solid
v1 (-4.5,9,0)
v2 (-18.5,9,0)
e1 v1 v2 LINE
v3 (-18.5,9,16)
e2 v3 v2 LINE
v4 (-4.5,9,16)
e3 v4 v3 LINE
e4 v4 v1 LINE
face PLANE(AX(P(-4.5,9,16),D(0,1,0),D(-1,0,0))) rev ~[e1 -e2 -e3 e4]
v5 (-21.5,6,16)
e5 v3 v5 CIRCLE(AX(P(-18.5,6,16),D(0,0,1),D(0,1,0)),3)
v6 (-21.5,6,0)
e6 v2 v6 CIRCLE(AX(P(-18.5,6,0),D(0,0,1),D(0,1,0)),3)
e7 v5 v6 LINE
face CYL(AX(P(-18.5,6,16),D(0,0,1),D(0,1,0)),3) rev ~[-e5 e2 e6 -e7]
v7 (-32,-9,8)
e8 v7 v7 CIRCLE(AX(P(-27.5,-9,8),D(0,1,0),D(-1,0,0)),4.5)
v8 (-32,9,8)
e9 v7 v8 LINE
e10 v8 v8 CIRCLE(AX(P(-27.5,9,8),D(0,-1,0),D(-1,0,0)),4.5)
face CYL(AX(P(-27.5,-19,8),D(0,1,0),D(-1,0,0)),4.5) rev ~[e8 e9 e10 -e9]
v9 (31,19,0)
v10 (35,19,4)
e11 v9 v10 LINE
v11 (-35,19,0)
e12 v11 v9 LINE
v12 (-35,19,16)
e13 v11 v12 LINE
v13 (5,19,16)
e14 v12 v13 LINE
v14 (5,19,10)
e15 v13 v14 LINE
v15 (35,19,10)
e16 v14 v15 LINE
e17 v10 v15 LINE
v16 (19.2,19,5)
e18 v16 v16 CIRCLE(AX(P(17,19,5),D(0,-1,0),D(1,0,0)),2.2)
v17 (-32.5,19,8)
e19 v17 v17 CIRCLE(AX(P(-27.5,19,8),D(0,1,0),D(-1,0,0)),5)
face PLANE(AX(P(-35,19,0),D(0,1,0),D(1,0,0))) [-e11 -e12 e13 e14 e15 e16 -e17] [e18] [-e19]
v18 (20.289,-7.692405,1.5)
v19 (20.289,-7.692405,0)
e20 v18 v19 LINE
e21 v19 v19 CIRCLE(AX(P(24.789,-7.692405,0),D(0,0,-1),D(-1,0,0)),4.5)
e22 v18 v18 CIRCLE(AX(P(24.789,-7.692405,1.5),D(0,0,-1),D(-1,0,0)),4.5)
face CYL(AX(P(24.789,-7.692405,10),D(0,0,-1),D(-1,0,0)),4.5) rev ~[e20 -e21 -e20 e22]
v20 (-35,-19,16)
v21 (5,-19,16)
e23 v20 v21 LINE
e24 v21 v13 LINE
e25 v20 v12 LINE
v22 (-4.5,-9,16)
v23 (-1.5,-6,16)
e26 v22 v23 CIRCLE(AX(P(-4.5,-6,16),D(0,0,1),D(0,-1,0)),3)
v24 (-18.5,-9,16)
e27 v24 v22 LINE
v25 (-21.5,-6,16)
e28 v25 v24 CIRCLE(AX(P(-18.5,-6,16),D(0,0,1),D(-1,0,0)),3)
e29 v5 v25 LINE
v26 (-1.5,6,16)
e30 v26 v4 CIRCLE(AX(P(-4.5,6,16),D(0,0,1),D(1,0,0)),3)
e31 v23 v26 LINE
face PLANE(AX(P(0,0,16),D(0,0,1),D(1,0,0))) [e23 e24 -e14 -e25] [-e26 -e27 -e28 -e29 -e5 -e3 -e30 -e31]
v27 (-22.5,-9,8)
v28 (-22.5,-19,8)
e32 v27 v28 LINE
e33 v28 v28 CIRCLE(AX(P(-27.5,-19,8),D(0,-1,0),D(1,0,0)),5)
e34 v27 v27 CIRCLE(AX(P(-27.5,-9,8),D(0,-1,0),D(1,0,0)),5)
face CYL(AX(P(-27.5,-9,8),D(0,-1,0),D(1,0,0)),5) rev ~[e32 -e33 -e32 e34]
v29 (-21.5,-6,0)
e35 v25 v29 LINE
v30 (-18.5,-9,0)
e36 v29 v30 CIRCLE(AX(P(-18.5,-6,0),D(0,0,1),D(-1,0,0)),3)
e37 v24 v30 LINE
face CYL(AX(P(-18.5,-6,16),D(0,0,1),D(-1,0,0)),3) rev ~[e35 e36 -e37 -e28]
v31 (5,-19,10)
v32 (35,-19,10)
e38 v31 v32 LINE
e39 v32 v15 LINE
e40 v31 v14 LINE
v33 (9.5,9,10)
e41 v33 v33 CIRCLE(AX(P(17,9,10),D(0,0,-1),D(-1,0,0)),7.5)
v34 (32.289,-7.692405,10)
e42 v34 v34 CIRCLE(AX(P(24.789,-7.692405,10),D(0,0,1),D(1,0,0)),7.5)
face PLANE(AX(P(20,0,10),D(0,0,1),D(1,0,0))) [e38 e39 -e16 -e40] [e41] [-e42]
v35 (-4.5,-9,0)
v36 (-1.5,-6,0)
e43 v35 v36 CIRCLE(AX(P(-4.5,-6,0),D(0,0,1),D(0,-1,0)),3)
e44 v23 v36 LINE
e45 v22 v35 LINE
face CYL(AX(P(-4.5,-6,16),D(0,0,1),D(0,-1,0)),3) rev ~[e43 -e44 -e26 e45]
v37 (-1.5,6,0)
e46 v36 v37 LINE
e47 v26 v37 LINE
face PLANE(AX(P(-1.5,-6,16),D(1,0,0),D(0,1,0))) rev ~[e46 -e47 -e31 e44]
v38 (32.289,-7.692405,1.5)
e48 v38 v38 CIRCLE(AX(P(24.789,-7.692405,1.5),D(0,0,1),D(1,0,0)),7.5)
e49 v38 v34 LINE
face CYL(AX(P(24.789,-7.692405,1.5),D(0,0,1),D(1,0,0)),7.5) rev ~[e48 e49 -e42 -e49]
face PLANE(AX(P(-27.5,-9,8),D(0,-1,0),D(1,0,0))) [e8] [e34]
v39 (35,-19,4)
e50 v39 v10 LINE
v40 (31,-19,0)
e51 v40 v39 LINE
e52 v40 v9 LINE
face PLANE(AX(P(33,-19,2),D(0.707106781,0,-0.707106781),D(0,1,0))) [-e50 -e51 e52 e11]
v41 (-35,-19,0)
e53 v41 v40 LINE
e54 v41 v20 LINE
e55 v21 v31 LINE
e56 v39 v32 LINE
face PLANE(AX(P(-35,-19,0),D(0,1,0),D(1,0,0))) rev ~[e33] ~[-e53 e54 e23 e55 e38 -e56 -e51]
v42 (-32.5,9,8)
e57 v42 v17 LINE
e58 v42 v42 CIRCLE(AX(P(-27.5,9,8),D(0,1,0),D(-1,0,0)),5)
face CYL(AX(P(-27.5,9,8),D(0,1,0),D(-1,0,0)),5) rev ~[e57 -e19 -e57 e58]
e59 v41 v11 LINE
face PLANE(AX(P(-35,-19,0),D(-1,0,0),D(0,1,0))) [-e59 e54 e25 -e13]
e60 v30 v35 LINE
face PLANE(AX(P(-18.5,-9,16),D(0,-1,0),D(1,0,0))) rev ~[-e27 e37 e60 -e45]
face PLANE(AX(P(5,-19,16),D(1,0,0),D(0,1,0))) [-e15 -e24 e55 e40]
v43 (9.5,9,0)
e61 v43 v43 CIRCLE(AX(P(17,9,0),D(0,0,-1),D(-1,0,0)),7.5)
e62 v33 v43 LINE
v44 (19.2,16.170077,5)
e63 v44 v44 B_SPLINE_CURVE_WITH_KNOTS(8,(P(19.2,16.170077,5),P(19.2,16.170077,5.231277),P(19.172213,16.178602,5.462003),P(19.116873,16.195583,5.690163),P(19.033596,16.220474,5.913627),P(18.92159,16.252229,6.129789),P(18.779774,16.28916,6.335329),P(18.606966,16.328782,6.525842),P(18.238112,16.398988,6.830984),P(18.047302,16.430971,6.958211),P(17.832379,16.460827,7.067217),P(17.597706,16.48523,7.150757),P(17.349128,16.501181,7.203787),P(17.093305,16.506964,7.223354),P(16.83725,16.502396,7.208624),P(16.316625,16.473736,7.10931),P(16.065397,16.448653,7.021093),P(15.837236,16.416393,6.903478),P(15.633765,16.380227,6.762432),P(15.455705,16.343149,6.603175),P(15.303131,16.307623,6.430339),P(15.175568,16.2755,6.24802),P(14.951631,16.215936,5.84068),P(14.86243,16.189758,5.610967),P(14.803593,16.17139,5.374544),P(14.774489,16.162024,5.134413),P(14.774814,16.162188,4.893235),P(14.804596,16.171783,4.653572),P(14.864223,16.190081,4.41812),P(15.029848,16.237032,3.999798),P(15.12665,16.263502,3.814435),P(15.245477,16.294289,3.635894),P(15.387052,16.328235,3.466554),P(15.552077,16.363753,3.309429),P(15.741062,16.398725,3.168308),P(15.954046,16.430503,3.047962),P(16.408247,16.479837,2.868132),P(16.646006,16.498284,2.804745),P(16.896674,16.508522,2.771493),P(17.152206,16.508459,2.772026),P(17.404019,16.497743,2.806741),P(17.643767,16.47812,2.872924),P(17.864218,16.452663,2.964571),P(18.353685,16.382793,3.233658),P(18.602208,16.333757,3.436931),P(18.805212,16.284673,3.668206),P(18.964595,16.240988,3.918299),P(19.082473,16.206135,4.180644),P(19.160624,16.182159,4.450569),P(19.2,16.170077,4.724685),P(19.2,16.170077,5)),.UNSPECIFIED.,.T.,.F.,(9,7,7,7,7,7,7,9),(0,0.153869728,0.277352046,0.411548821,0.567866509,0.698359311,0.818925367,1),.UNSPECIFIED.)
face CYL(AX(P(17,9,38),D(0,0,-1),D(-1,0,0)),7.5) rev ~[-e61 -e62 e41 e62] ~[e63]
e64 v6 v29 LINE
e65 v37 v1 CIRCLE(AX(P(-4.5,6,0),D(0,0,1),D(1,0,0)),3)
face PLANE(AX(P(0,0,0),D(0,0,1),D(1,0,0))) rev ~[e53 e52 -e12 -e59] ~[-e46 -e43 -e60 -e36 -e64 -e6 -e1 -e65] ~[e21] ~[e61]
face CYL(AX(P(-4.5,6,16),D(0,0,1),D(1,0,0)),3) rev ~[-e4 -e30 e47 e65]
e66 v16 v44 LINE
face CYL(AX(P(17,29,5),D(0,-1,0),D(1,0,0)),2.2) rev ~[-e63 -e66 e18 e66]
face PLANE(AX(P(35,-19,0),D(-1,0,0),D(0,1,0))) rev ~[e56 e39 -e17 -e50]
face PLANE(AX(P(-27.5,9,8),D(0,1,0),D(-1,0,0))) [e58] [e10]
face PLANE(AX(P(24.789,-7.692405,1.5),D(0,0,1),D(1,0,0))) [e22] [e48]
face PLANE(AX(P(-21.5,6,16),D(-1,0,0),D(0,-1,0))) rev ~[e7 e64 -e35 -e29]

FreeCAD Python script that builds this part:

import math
import FreeCAD as App
import Part
import Sketcher

V = App.Vector


def edges_at(feature, points):
    """Names of the edges that pass closest to the given points."""
    edges = feature.Shape.Edges
    near = lambda p: min(range(len(edges)), key=lambda i: edges[i].distToShape(Part.Vertex(*p))[0])
    return sorted({f"Edge{near(p) + 1}" for p in points})


def add_polygon(sketch, points):
    """Adds a closed chain of lines whose ends are joined by coincident constraints."""
    first, n = sketch.GeometryCount, len(points)
    for a, b in zip(points, points[1:] + points[:1]):
        sketch.addGeometry(Part.LineSegment(App.Vector(*a, 0), App.Vector(*b, 0)), False)
    for i in range(n):
        sketch.addConstraint(Sketcher.Constraint("Coincident", first + i, 2, first + (i + 1) % n, 1))

doc = App.newDocument("Part")
body = doc.addObject("PartDesign::Body", "Body")

# Sketch on XY plane
sketch1 = doc.addObject("Sketcher::SketchObject", "Sketch")
body.addObject(sketch1)
sketch1.AttachmentSupport = (doc.XY_Plane, [""])
sketch1.MapMode = "FlatFace"
add_polygon(sketch1, [(-35, 19), (-35, -19), (35, -19), (35, 19)])  # lines 0-3
sketch1.addConstraint([
    Sketcher.Constraint("Vertical", 0),
    Sketcher.Constraint("Horizontal", 1),
    Sketcher.Constraint("Vertical", 2),
    Sketcher.Constraint("Horizontal", 3),
    Sketcher.Constraint("Symmetric", 0, 2, 2, 2, -1, 1),
    Sketcher.Constraint("DistanceX", 1, 1, 1, 2, 70.0),
    Sketcher.Constraint("DistanceY", 0, 2, 0, 1, 38.0),
])
pad1 = doc.addObject("PartDesign::Pad", "Pad")
body.addObject(pad1)
pad1.Profile = sketch1
pad1.Length = 16

# Sketch on XZ plane
sketch2 = doc.addObject("Sketcher::SketchObject", "Sketch001")
body.addObject(sketch2)
sketch2.AttachmentSupport = (doc.XZ_Plane, [""])
sketch2.MapMode = "FlatFace"
sketch2.AttachmentOffset = App.Placement(V(0, 0, 19), App.Rotation())
sketch2.addGeometry(Part.Circle(V(-27.5, 8, 0), V(0, 0, 1), 4.5), False)
sketch2.addConstraint([
    Sketcher.Constraint("Diameter", 0, 9.0),
    Sketcher.Constraint("DistanceY", -1, 1, 0, 3, 8.0),
    Sketcher.Constraint("DistanceX", 0, 3, -1, 1, 27.5),
])
doc.recompute()
hole = doc.addObject("PartDesign::Hole", "Hole")
body.addObject(hole)
hole.Profile = sketch2
hole.ThreadType = "None"
hole.Diameter = 9
hole.DepthType = "Dimension"
hole.Depth = 28
hole.DrillPoint = "Angled"
hole.DrillPointAngle = 118
hole.HoleCutType = "Counterbore"
hole.HoleCutDiameter = 10
hole.HoleCutDepth = 10

# Sketch on XZ plane
sketch3 = doc.addObject("Sketcher::SketchObject", "Sketch002")
body.addObject(sketch3)
sketch3.AttachmentSupport = (doc.XZ_Plane, [""])
sketch3.MapMode = "FlatFace"
sketch3.AttachmentOffset = App.Placement(V(0, 0, -19), App.Rotation())
sketch3.addGeometry(Part.Circle(V(-27.5, 8, 0), V(0, 0, 1), 4.5), False)
sketch3.addConstraint([
    Sketcher.Constraint("Diameter", 0, 9.0),
    Sketcher.Constraint("DistanceY", -1, 1, 0, 3, 8.0),
    Sketcher.Constraint("DistanceX", 0, 3, -1, 1, 27.5),
])
doc.recompute()
hole2 = doc.addObject("PartDesign::Hole", "Hole001")
body.addObject(hole2)
hole2.Profile = sketch3
hole2.ThreadType = "None"
hole2.Diameter = 9
hole2.DepthType = "Dimension"
hole2.Depth = 28
hole2.DrillPoint = "Angled"
hole2.DrillPointAngle = 118
hole2.HoleCutType = "Counterbore"
hole2.HoleCutDiameter = 10
hole2.HoleCutDepth = 10
hole2.Reversed = True

# Sketch on XY plane
sketch4 = doc.addObject("Sketcher::SketchObject", "Sketch003")
body.addObject(sketch4)
sketch4.AttachmentSupport = (doc.XY_Plane, [""])
sketch4.MapMode = "FlatFace"
sketch4.AttachmentOffset = App.Placement(V(0, 0, 16), App.Rotation())
sketch4.addGeometry([
    Part.LineSegment(V(-4.5, 9, 0), V(-18.5, 9, 0)),  # 0
    Part.ArcOfCircle(Part.Circle(V(-18.5, 6, 0), V(0, 0, 1), 3), math.radians(90), math.radians(180)),  # 1
    Part.LineSegment(V(-21.5, 6, 0), V(-21.5, -6, 0)),  # 2
    Part.ArcOfCircle(Part.Circle(V(-18.5, -6, 0), V(0, 0, 1), 3), math.radians(180), math.radians(270)),  # 3
    Part.LineSegment(V(-18.5, -9, 0), V(-4.5, -9, 0)),  # 4
    Part.ArcOfCircle(Part.Circle(V(-4.5, -6, 0), V(0, 0, 1), 3), math.radians(-90), math.radians(0)),  # 5
    Part.LineSegment(V(-1.5, -6, 0), V(-1.5, 6, 0)),  # 6
    Part.ArcOfCircle(Part.Circle(V(-4.5, 6, 0), V(0, 0, 1), 3), math.radians(0), math.radians(90)),  # 7
], False)
sketch4.addConstraint([
    Sketcher.Constraint("Tangent", 0, 2, 1, 1),
    Sketcher.Constraint("Tangent", 1, 2, 2, 1),
    Sketcher.Constraint("Tangent", 2, 2, 3, 1),
    Sketcher.Constraint("Tangent", 3, 2, 4, 1),
    Sketcher.Constraint("Tangent", 4, 2, 5, 1),
    Sketcher.Constraint("Tangent", 5, 2, 6, 1),
    Sketcher.Constraint("Tangent", 6, 2, 7, 1),
    Sketcher.Constraint("Tangent", 7, 2, 0, 1),
    Sketcher.Constraint("Horizontal", 0),
    Sketcher.Constraint("Vertical", 2),
    Sketcher.Constraint("Horizontal", 4),
    Sketcher.Constraint("Vertical", 6),
    Sketcher.Constraint("Equal", 1, 3),
    Sketcher.Constraint("Equal", 3, 5),
    Sketcher.Constraint("Equal", 5, 7),
    Sketcher.Constraint("Radius", 1, 3.0),
    Sketcher.Constraint("DistanceX", 0, 2, 0, 1, 14.0),
    Sketcher.Constraint("DistanceY", 2, 2, 2, 1, 12.0),
    Sketcher.Constraint("DistanceY", -1, 1, 1, 3, 6.0),
    Sketcher.Constraint("DistanceX", 1, 3, -1, 1, 18.5),
])
pocket1 = doc.addObject("PartDesign::Pocket", "Pocket")
body.addObject(pocket1)
pocket1.Profile = sketch4
pocket1.Length = 25

# Sketch on XY plane
sketch5 = doc.addObject("Sketcher::SketchObject", "Sketch004")
body.addObject(sketch5)
sketch5.AttachmentSupport = (doc.XY_Plane, [""])
sketch5.MapMode = "FlatFace"
sketch5.AttachmentOffset = App.Placement(V(0, 0, 16), App.Rotation())
add_polygon(sketch5, [(5, 19), (5, -19), (35, -19), (35, 19)])  # lines 0-3
sketch5.addConstraint([
    Sketcher.Constraint("Vertical", 0),
    Sketcher.Constraint("Horizontal", 1),
    Sketcher.Constraint("Vertical", 2),
    Sketcher.Constraint("Horizontal", 3),
    Sketcher.Constraint("DistanceX", 1, 1, 1, 2, 30.0),
    Sketcher.Constraint("DistanceY", 0, 2, 0, 1, 38.0),
    Sketcher.Constraint("DistanceX", -1, 1, 0, 2, 5.0),
    Sketcher.Constraint("DistanceY", 0, 2, -1, 1, 19.0),
])
pocket2 = doc.addObject("PartDesign::Pocket", "Pocket001")
body.addObject(pocket2)
pocket2.Profile = sketch5
pocket2.Length = 6
doc.recompute()

chamfer = doc.addObject("PartDesign::Chamfer", "Chamfer")
body.addObject(chamfer)
chamfer.Base = (pocket2, edges_at(pocket2, [(35, 0, 0)]))
chamfer.Size = 4

# Sketch on XY plane
sketch6 = doc.addObject("Sketcher::SketchObject", "Sketch005")
body.addObject(sketch6)
sketch6.AttachmentSupport = (doc.XY_Plane, [""])
sketch6.MapMode = "FlatFace"
sketch6.AttachmentOffset = App.Placement(V(0, 0, 10), App.Rotation())
sketch6.addGeometry(Part.Circle(V(24.8, -7.7, 0), V(0, 0, 1), 4.5), False)
sketch6.addConstraint([
    Sketcher.Constraint("Diameter", 0, 9.0),
    Sketcher.Constraint("DistanceX", -1, 1, 0, 3, 24.789),
    Sketcher.Constraint("DistanceY", 0, 3, -1, 1, 7.692405),
])
doc.recompute()
hole3 = doc.addObject("PartDesign::Hole", "Hole002")
body.addObject(hole3)
hole3.Profile = sketch6
hole3.ThreadType = "None"
hole3.Diameter = 9
hole3.DepthType = "Dimension"
hole3.Depth = 28
hole3.DrillPoint = "Angled"
hole3.DrillPointAngle = 118
hole3.HoleCutType = "Counterbore"
hole3.HoleCutDiameter = 15
hole3.HoleCutDepth = 8.5

# Sketch on XY plane
sketch7 = doc.addObject("Sketcher::SketchObject", "Sketch006")
body.addObject(sketch7)
sketch7.AttachmentSupport = (doc.XY_Plane, [""])
sketch7.MapMode = "FlatFace"
sketch7.AttachmentOffset = App.Placement(V(0, 0, 10), App.Rotation())
sketch7.addGeometry(Part.Circle(V(17, 9, 0), V(0, 0, 1), 8), False)
sketch7.addConstraint([
    Sketcher.Constraint("Diameter", 0, 15.0),
    Sketcher.Constraint("DistanceX", -1, 1, 0, 3, 17.0),
    Sketcher.Constraint("DistanceY", -1, 1, 0, 3, 9.0),
])
doc.recompute()
hole4 = doc.addObject("PartDesign::Hole", "Hole003")
body.addObject(hole4)
hole4.Profile = sketch7
hole4.ThreadType = "None"
hole4.Diameter = 15
hole4.DepthType = "Dimension"
hole4.Depth = 28
hole4.DrillPoint = "Angled"
hole4.DrillPointAngle = 118

# Sketch on XZ plane
sketch8 = doc.addObject("Sketcher::SketchObject", "Sketch007")
body.addObject(sketch8)
sketch8.AttachmentSupport = (doc.XZ_Plane, [""])
sketch8.MapMode = "FlatFace"
sketch8.AttachmentOffset = App.Placement(V(0, 0, -19), App.Rotation())
sketch8.addGeometry(Part.Circle(V(17, 5, 0), V(0, 0, 1), 2.2), False)
sketch8.addConstraint([
    Sketcher.Constraint("Diameter", 0, 4.4),
    Sketcher.Constraint("DistanceX", -1, 1, 0, 3, 17.0),
    Sketcher.Constraint("DistanceY", -1, 1, 0, 3, 5.0),
])
doc.recompute()
hole5 = doc.addObject("PartDesign::Hole", "Hole004")
body.addObject(hole5)
hole5.Profile = sketch8
hole5.ThreadType = "None"
hole5.Diameter = 4.4
hole5.DepthType = "Dimension"
hole5.Depth = 10
hole5.DrillPoint = "Angled"
hole5.DrillPointAngle = 118
hole5.Reversed = True

doc.recompute()
